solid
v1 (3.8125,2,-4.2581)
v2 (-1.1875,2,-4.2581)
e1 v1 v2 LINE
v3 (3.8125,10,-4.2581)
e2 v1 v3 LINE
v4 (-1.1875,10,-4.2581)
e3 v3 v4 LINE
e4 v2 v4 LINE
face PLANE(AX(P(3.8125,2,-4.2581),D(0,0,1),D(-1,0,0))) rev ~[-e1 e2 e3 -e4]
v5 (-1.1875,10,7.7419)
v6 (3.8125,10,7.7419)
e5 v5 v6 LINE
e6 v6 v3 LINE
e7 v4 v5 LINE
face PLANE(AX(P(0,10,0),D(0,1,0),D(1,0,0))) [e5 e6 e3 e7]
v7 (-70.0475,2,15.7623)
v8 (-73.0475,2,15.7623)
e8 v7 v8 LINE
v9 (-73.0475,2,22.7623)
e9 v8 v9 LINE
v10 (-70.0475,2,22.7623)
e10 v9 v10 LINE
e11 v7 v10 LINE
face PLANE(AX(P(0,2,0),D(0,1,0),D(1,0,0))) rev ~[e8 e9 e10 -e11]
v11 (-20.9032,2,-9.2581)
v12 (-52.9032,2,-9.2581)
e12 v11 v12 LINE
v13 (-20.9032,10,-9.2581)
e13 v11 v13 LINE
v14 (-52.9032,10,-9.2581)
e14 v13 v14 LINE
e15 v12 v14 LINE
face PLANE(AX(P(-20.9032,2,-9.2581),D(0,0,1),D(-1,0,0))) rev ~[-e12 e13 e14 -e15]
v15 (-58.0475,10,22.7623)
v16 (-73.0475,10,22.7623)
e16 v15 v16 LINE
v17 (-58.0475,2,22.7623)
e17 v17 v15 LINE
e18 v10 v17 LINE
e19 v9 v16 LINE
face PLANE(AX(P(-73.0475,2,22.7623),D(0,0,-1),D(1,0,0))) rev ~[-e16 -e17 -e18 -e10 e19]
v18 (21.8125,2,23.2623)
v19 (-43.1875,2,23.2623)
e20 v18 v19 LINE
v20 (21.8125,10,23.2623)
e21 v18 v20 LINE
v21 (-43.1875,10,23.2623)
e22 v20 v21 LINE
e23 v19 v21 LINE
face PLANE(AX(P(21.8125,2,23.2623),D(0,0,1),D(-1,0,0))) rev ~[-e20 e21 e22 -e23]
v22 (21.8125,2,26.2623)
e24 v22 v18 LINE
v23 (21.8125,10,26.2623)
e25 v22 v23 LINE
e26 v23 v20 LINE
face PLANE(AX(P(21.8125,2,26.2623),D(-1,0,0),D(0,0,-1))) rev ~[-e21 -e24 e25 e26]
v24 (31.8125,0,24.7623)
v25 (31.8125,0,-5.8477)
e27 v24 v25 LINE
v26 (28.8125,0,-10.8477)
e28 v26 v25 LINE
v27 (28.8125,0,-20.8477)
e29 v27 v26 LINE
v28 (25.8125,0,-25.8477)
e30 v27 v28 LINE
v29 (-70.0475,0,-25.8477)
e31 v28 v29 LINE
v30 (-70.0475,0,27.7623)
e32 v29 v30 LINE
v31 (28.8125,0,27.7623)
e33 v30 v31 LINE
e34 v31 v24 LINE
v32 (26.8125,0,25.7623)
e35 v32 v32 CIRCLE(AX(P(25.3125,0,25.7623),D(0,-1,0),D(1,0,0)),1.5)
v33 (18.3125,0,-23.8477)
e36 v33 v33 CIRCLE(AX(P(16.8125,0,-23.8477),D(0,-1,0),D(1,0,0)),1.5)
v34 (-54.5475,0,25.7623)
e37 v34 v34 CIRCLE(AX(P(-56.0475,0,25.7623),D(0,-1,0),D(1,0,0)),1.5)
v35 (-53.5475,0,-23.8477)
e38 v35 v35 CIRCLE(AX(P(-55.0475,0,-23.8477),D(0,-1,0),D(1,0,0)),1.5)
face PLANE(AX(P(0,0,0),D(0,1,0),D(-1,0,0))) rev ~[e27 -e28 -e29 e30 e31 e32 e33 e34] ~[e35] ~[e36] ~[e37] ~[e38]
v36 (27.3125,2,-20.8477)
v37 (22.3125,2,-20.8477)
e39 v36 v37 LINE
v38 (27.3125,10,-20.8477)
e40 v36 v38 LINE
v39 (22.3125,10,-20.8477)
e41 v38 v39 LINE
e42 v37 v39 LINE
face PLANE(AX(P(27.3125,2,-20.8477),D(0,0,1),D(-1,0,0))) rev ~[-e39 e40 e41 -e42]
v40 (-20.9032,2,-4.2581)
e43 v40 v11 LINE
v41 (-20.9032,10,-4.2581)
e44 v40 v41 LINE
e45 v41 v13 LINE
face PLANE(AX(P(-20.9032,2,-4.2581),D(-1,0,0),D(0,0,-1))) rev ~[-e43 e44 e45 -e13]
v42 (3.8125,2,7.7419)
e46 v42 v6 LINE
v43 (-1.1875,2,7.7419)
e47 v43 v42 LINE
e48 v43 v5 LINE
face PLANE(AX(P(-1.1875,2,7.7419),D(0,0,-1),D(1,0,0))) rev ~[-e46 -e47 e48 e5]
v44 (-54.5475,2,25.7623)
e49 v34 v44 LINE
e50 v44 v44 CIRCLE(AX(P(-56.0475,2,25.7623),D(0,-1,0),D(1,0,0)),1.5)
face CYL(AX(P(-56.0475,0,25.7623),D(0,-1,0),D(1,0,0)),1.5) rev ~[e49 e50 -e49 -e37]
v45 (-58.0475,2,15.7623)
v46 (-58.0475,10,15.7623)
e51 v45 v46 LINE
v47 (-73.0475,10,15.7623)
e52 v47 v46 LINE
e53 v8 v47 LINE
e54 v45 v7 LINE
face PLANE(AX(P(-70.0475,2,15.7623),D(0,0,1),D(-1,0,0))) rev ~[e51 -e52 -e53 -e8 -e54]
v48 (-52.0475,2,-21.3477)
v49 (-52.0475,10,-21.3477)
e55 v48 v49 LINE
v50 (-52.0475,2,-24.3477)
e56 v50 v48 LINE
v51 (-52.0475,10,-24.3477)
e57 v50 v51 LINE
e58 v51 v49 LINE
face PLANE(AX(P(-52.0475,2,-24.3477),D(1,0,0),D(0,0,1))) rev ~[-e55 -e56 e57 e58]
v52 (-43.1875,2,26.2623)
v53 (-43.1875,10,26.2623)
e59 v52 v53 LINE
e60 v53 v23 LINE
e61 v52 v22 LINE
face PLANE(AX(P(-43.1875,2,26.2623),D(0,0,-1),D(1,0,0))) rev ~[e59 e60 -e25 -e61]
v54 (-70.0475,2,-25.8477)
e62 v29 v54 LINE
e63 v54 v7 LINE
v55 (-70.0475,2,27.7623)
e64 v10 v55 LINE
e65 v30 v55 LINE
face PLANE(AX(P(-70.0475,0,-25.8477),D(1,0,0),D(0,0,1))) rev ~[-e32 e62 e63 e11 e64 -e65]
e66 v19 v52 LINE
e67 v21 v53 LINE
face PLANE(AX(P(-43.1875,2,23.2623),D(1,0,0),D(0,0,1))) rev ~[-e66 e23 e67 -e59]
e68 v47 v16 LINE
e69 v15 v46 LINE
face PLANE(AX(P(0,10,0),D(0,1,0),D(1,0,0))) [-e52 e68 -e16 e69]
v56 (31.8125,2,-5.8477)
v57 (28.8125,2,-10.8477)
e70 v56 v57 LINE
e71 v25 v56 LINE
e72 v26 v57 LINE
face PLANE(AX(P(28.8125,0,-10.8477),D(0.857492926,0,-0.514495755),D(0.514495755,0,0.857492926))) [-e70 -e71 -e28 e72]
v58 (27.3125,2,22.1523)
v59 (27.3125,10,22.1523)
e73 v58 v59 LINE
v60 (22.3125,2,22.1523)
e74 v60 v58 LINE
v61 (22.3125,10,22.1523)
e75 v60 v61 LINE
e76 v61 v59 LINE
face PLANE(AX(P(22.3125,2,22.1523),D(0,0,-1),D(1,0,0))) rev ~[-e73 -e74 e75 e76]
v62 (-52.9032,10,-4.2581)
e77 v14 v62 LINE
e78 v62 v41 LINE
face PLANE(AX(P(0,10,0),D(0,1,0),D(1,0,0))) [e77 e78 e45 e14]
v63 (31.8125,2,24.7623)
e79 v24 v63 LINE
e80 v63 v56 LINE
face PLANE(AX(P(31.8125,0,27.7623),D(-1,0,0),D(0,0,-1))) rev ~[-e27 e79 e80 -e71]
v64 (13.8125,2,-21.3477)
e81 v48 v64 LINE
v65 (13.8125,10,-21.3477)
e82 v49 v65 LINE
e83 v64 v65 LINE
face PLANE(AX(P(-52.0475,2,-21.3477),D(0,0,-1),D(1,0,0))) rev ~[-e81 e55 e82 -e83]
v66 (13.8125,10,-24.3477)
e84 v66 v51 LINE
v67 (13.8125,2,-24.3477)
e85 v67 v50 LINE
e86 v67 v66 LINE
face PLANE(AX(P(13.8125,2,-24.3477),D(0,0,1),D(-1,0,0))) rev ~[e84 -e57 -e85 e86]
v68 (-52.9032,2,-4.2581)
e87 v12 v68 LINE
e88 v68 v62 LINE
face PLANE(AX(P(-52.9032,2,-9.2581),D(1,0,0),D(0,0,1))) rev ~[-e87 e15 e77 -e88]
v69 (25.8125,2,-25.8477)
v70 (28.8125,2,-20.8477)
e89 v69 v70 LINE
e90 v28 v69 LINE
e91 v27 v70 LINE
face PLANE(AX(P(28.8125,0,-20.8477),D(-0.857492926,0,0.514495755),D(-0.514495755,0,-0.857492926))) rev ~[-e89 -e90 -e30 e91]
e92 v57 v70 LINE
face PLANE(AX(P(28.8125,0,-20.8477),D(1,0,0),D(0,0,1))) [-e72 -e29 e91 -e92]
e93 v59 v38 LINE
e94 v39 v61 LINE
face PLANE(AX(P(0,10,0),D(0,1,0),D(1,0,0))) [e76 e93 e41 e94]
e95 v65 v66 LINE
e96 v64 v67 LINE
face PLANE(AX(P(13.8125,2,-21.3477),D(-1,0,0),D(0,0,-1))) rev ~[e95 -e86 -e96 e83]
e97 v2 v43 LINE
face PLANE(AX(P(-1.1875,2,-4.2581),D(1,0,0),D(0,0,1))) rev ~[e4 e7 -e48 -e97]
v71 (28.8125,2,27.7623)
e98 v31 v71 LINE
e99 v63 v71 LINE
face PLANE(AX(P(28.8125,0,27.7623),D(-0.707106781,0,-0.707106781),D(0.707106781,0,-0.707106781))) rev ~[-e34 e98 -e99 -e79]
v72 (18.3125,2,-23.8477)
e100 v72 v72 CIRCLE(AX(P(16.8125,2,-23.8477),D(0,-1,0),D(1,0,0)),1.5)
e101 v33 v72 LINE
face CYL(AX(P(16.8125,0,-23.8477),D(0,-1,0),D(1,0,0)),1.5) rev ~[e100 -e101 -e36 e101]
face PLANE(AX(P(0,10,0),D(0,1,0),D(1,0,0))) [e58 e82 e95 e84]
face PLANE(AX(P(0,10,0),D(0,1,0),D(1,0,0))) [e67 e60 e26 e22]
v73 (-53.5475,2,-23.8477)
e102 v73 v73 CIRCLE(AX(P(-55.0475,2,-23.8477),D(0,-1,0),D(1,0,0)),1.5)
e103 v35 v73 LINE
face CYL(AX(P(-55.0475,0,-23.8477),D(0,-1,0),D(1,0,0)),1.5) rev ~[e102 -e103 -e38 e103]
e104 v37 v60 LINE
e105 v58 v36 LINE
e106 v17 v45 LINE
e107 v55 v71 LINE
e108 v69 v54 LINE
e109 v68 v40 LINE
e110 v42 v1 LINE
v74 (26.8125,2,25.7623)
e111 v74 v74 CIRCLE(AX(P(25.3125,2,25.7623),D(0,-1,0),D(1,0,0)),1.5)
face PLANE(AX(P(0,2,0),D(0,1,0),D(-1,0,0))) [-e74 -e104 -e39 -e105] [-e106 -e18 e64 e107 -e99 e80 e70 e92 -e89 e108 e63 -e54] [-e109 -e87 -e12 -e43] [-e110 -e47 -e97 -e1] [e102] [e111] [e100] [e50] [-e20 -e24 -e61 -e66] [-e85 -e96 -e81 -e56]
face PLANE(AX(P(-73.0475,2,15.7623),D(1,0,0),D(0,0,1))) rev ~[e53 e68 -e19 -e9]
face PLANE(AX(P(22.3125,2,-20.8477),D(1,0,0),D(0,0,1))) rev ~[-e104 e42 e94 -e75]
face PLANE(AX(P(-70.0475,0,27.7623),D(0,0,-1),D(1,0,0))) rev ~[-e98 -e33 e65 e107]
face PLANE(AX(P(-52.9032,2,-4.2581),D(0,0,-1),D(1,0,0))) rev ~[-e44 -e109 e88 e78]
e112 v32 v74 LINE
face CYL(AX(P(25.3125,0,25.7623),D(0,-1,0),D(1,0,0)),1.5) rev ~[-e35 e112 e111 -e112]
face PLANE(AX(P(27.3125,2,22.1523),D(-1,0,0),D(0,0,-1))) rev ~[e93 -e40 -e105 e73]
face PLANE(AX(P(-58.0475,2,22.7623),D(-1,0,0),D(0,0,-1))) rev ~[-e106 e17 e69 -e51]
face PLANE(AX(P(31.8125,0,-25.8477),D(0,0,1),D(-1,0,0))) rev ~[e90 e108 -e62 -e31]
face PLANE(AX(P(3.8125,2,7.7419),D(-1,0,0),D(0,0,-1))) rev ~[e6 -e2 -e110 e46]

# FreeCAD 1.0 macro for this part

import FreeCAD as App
import Part
import Sketcher

doc = App.newDocument("Part")
body = doc.addObject("PartDesign::Body", "Body")

sketch1 = doc.addObject("Sketcher::SketchObject", "Sketch")
body.addObject(sketch1)
sketch1.AttachmentSupport = (doc.XZ_Plane, [""])
sketch1.MapMode = "FlatFace"
sketch1.addGeometry([
    Part.LineSegment(App.Vector(-70.0475, -25.8477, 0), App.Vector(-70.0475, 27.7623, 0)),
    Part.LineSegment(App.Vector(-70.0475, 27.7623, 0), App.Vector(31.8125, 27.7623, 0)),
    Part.LineSegment(App.Vector(31.8125, 27.7623, 0), App.Vector(31.8125, -25.8477, 0)),
    Part.LineSegment(App.Vector(31.8125, -25.8477, 0), App.Vector(-70.0475, -25.8477, 0)),
], False)
sketch1.addConstraint([
    Sketcher.Constraint("Coincident", 0, 2, 1, 1),
    Sketcher.Constraint("Coincident", 1, 2, 2, 1),
    Sketcher.Constraint("Coincident", 2, 2, 3, 1),
    Sketcher.Constraint("Coincident", 3, 2, 0, 1),
    Sketcher.Constraint("Vertical", 0),
    Sketcher.Constraint("Horizontal", 1),
    Sketcher.Constraint("Vertical", 2),
    Sketcher.Constraint("Horizontal", 3),
    Sketcher.Constraint("DistanceX", 1, 1, 1, 2, 101.86),
    Sketcher.Constraint("DistanceY", 0, 1, 0, 2, 53.61),
    Sketcher.Constraint("DistanceX", 0, 2, -1, 1, 70.0475),
    Sketcher.Constraint("DistanceY", -1, 1, 0, 2, 27.7623),
])
pad1 = doc.addObject("PartDesign::Pad", "Pad")
body.addObject(pad1)
pad1.Profile = sketch1
pad1.Length = 2
pad1.Reversed = True

sketch2 = doc.addObject("Sketcher::SketchObject", "Sketch001")
body.addObject(sketch2)
sketch2.AttachmentSupport = (doc.XZ_Plane, [""])
sketch2.MapMode = "FlatFace"
sketch2.addGeometry([
    Part.LineSegment(App.Vector(31.8125, 27.7623, 0), App.Vector(28.8125, 27.7623, 0)),
    Part.LineSegment(App.Vector(28.8125, 27.7623, 0), App.Vector(31.8125, 24.7623, 0)),
    Part.LineSegment(App.Vector(31.8125, 24.7623, 0), App.Vector(31.8125, 27.7623, 0)),
    Part.LineSegment(App.Vector(28.8125, -20.8477, 0), App.Vector(25.8125, -25.8477, 0)),
    Part.LineSegment(App.Vector(25.8125, -25.8477, 0), App.Vector(31.8125, -25.8477, 0)),
    Part.LineSegment(App.Vector(31.8125, -25.8477, 0), App.Vector(31.8125, -5.8477, 0)),
    Part.LineSegment(App.Vector(31.8125, -5.8477, 0), App.Vector(28.8125, -10.8477, 0)),
    Part.LineSegment(App.Vector(28.8125, -10.8477, 0), App.Vector(28.8125, -20.8477, 0)),
    Part.Circle(App.Vector(25.3125, 25.7623, 0), App.Vector(0, 0, 1), 1.5),
    Part.Circle(App.Vector(16.8125, -23.8477, 0), App.Vector(0, 0, 1), 1.5),
    Part.Circle(App.Vector(-56.0475, 25.7623, 0), App.Vector(0, 0, 1), 1.5),
    Part.Circle(App.Vector(-55.0475, -23.8477, 0), App.Vector(0, 0, 1), 1.5),
], False)
sketch2.addConstraint([
    Sketcher.Constraint("Coincident", 0, 2, 1, 1),
    Sketcher.Constraint("Coincident", 1, 2, 2, 1),
    Sketcher.Constraint("Coincident", 2, 2, 0, 1),
    Sketcher.Constraint("Coincident", 3, 2, 4, 1),
    Sketcher.Constraint("Coincident", 4, 2, 5, 1),
    Sketcher.Constraint("Coincident", 5, 2, 6, 1),
    Sketcher.Constraint("Coincident", 6, 2, 7, 1),
    Sketcher.Constraint("Coincident", 7, 2, 3, 1),
    Sketcher.Constraint("Horizontal", 0),
    Sketcher.Constraint("Vertical", 2),
    Sketcher.Constraint("Horizontal", 4),
    Sketcher.Constraint("Vertical", 5),
    Sketcher.Constraint("Vertical", 7),
    Sketcher.Constraint("Equal", 8, 9),
    Sketcher.Constraint("Equal", 9, 10),
    Sketcher.Constraint("Equal", 10, 11),
    Sketcher.Constraint("Parallel", 3, 6),
    Sketcher.Constraint("Horizontal", 8, 3, 10, 3),
    Sketcher.Constraint("Horizontal", 9, 3, 11, 3),
    Sketcher.Constraint("Vertical", 2, 2, 4, 2),
    Sketcher.Constraint("Vertical", 0, 2, 6, 2),
    Sketcher.Constraint("Equal", 0, 2),
    Sketcher.Constraint("Equal", 3, 6),
    Sketcher.Constraint("Diameter", 8, 3.0),
    Sketcher.Constraint("DistanceX", 0, 2, 0, 1, 3.0),
    Sketcher.Constraint("DistanceY", 7, 2, 7, 1, 10.0),
    Sketcher.Constraint("DistanceY", 8, 3, 0, 2, 2.0),
    Sketcher.Constraint("DistanceX", 9, 3, 1, 2, 15.0),
    Sketcher.Constraint("DistanceY", 3, 2, 9, 3, 2.0),
    Sketcher.Constraint("DistanceY", 3, 2, 6, 2, 15.0),
    Sketcher.Constraint("DistanceX", 8, 3, 1, 2, 6.5),
    Sketcher.Constraint("DistanceX", 10, 3, 11, 3, 1.0),
    Sketcher.Constraint("DistanceY", 9, 3, 8, 3, 49.61),
    Sketcher.Constraint("DistanceX", 10, 3, 8, 3, 81.36),
    Sketcher.Constraint("DistanceX", -1, 1, 8, 3, 25.3125),
    Sketcher.Constraint("DistanceY", -1, 1, 8, 3, 25.7623),
])
pocket1 = doc.addObject("PartDesign::Pocket", "Pocket")
body.addObject(pocket1)
pocket1.Profile = sketch2
pocket1.Length = 3

sketch3 = doc.addObject("Sketcher::SketchObject", "Sketch002")
body.addObject(sketch3)
sketch3.AttachmentSupport = (doc.XZ_Plane, [""])
sketch3.MapMode = "FlatFace"
sketch3.AttachmentOffset = App.Placement(App.Vector(0, 0, -2), App.Rotation())
sketch3.addGeometry([
    Part.LineSegment(App.Vector(-73.0475, 15.7623, 0), App.Vector(-73.0475, 22.7623, 0)),
    Part.LineSegment(App.Vector(-73.0475, 22.7623, 0), App.Vector(-58.0475, 22.7623, 0)),
    Part.LineSegment(App.Vector(-58.0475, 22.7623, 0), App.Vector(-58.0475, 15.7623, 0)),
    Part.LineSegment(App.Vector(-58.0475, 15.7623, 0), App.Vector(-73.0475, 15.7623, 0)),
], False)
sketch3.addConstraint([
    Sketcher.Constraint("Coincident", 0, 2, 1, 1),
    Sketcher.Constraint("Coincident", 1, 2, 2, 1),
    Sketcher.Constraint("Coincident", 2, 2, 3, 1),
    Sketcher.Constraint("Coincident", 3, 2, 0, 1),
    Sketcher.Constraint("Vertical", 0),
    Sketcher.Constraint("Horizontal", 1),
    Sketcher.Constraint("Vertical", 2),
    Sketcher.Constraint("Horizontal", 3),
    Sketcher.Constraint("DistanceX", 1, 1, 1, 2, 15.0),
    Sketcher.Constraint("DistanceY", 0, 1, 0, 2, 7.0),
    Sketcher.Constraint("DistanceX", 0, 2, -1, 1, 73.0475),
    Sketcher.Constraint("DistanceY", -1, 1, 0, 2, 22.7623),
])
pad2 = doc.addObject("PartDesign::Pad", "Pad001")
body.addObject(pad2)
pad2.Profile = sketch3
pad2.Length = 8
pad2.Reversed = True

sketch4 = doc.addObject("Sketcher::SketchObject", "Sketch003")
body.addObject(sketch4)
sketch4.AttachmentSupport = (doc.XZ_Plane, [""])
sketch4.MapMode = "FlatFace"
sketch4.AttachmentOffset = App.Placement(App.Vector(0, 0, -2), App.Rotation())
sketch4.addGeometry([
    Part.LineSegment(App.Vector(-52.9032, -9.2581, 0), App.Vector(-52.9032, -4.2581, 0)),
    Part.LineSegment(App.Vector(-52.9032, -4.2581, 0), App.Vector(-20.9032, -4.2581, 0)),
    Part.LineSegment(App.Vector(-20.9032, -4.2581, 0), App.Vector(-20.9032, -9.2581, 0)),
    Part.LineSegment(App.Vector(-20.9032, -9.2581, 0), App.Vector(-52.9032, -9.2581, 0)),
    Part.LineSegment(App.Vector(-1.1875, -4.2581, 0), App.Vector(-1.1875, 7.7419, 0)),
    Part.LineSegment(App.Vector(-1.1875, 7.7419, 0), App.Vector(3.8125, 7.7419, 0)),
    Part.LineSegment(App.Vector(3.8125, 7.7419, 0), App.Vector(3.8125, -4.2581, 0)),
    Part.LineSegment(App.Vector(3.8125, -4.2581, 0), App.Vector(-1.1875, -4.2581, 0)),
], False)
sketch4.addConstraint([
    Sketcher.Constraint("Coincident", 0, 2, 1, 1),
    Sketcher.Constraint("Coincident", 1, 2, 2, 1),
    Sketcher.Constraint("Coincident", 2, 2, 3, 1),
    Sketcher.Constraint("Coincident", 3, 2, 0, 1),
    Sketcher.Constraint("Coincident", 4, 2, 5, 1),
    Sketcher.Constraint("Coincident", 5, 2, 6, 1),
    Sketcher.Constraint("Coincident", 6, 2, 7, 1),
    Sketcher.Constraint("Coincident", 7, 2, 4, 1),
    Sketcher.Constraint("Vertical", 0),
    Sketcher.Constraint("Horizontal", 1),
    Sketcher.Constraint("Vertical", 2),
    Sketcher.Constraint("Horizontal", 3),
    Sketcher.Constraint("Vertical", 4),
    Sketcher.Constraint("Horizontal", 5),
    Sketcher.Constraint("Vertical", 6),
    Sketcher.Constraint("Horizontal", 7),
    Sketcher.Constraint("Horizontal", 1, 2, 6, 2),
    Sketcher.Constraint("Equal", 7, 0),
    Sketcher.Constraint("DistanceX", 1, 1, 1, 2, 32.0),
    Sketcher.Constraint("DistanceX", 5, 1, 5, 2, 5.0),
    Sketcher.Constraint("DistanceY", 4, 1, 4, 2, 12.0),
    Sketcher.Constraint("DistanceY", 0, 2, -1, 1, 4.258),
    Sketcher.Constraint("DistanceX", 0, 2, -1, 1, 52.9032),
    Sketcher.Constraint("DistanceX", 4, 2, -1, 1, 1.1875),
])
pad3 = doc.addObject("PartDesign::Pad", "Pad002")
body.addObject(pad3)
pad3.Profile = sketch4
pad3.Length = 8
pad3.Reversed = True

sketch5 = doc.addObject("Sketcher::SketchObject", "Sketch004")
body.addObject(sketch5)
sketch5.AttachmentSupport = (doc.XZ_Plane, [""])
sketch5.MapMode = "FlatFace"
sketch5.AttachmentOffset = App.Placement(App.Vector(0, 0, -2), App.Rotation())
sketch5.addGeometry([
    Part.LineSegment(App.Vector(27.3125, 22.1523, 0), App.Vector(27.3125, -20.8477, 0)),
    Part.LineSegment(App.Vector(27.3125, -20.8477, 0), App.Vector(22.3125, -20.8477, 0)),
    Part.LineSegment(App.Vector(22.3125, -20.8477, 0), App.Vector(22.3125, 22.1523, 0)),
    Part.LineSegment(App.Vector(22.3125, 22.1523, 0), App.Vector(27.3125, 22.1523, 0)),
    Part.LineSegment(App.Vector(21.8125, 26.2623, 0), App.Vector(21.8125, 23.2623, 0)),
    Part.LineSegment(App.Vector(21.8125, 23.2623, 0), App.Vector(-43.1875, 23.2623, 0)),
    Part.LineSegment(App.Vector(-43.1875, 23.2623, 0), App.Vector(-43.1875, 26.2623, 0)),
    Part.LineSegment(App.Vector(-43.1875, 26.2623, 0), App.Vector(21.8125, 26.2623, 0)),
    Part.LineSegment(App.Vector(13.8125, -21.3477, 0), App.Vector(13.8125, -24.3477, 0)),
    Part.LineSegment(App.Vector(13.8125, -24.3477, 0), App.Vector(-52.0475, -24.3477, 0)),
    Part.LineSegment(App.Vector(-52.0475, -24.3477, 0), App.Vector(-52.0475, -21.3477, 0)),
    Part.LineSegment(App.Vector(-52.0475, -21.3477, 0), App.Vector(13.8125, -21.3477, 0)),
], False)
sketch5.addConstraint([
    Sketcher.Constraint("Coincident", 0, 2, 1, 1),
    Sketcher.Constraint("Coincident", 1, 2, 2, 1),
    Sketcher.Constraint("Coincident", 2, 2, 3, 1),
    Sketcher.Constraint("Coincident", 3, 2, 0, 1),
    Sketcher.Constraint("Coincident", 4, 2, 5, 1),
    Sketcher.Constraint("Coincident", 5, 2, 6, 1),
    Sketcher.Constraint("Coincident", 6, 2, 7, 1),
    Sketcher.Constraint("Coincident", 7, 2, 4, 1),
    Sketcher.Constraint("Coincident", 8, 2, 9, 1),
    Sketcher.Constraint("Coincident", 9, 2, 10, 1),
    Sketcher.Constraint("Coincident", 10, 2, 11, 1),
    Sketcher.Constraint("Coincident", 11, 2, 8, 1),
    Sketcher.Constraint("Vertical", 0),
    Sketcher.Constraint("Horizontal", 1),
    Sketcher.Constraint("Vertical", 2),
    Sketcher.Constraint("Horizontal", 3),
    Sketcher.Constraint("Vertical", 4),
    Sketcher.Constraint("Horizontal", 5),
    Sketcher.Constraint("Vertical", 6),
    Sketcher.Constraint("Horizontal", 7),
    Sketcher.Constraint("Vertical", 8),
    Sketcher.Constraint("Horizontal", 9),
    Sketcher.Constraint("Vertical", 10),
    Sketcher.Constraint("Horizontal", 11),
    Sketcher.Constraint("Equal", 6, 8),
    Sketcher.Constraint("DistanceX", 1, 2, 1, 1, 5.0),
    Sketcher.Constraint("DistanceX", 5, 2, 5, 1, 65.0),
    Sketcher.Constraint("DistanceY", 0, 2, 0, 1, 43.0),
    Sketcher.Constraint("DistanceY", 4, 2, 4, 1, 3.0),
    Sketcher.Constraint("DistanceX", 8, 2, 4, 2, 8.0),
    Sketcher.Constraint("DistanceX", 9, 2, 9, 1, 65.86),
    Sketcher.Constraint("DistanceX", 4, 2, 2, 2, 0.5),
    Sketcher.Constraint("DistanceY", 8, 2, 1, 2, 3.5),
    Sketcher.Constraint("DistanceY", 2, 2, 4, 2, 1.11),
    Sketcher.Constraint("DistanceX", -1, 1, 0, 2, 27.3125),
    Sketcher.Constraint("DistanceY", 0, 2, -1, 1, 20.8477),
])
pad4 = doc.addObject("PartDesign::Pad", "Pad003")
body.addObject(pad4)
pad4.Profile = sketch5
pad4.Length = 8
pad4.Reversed = True

doc.recompute()
